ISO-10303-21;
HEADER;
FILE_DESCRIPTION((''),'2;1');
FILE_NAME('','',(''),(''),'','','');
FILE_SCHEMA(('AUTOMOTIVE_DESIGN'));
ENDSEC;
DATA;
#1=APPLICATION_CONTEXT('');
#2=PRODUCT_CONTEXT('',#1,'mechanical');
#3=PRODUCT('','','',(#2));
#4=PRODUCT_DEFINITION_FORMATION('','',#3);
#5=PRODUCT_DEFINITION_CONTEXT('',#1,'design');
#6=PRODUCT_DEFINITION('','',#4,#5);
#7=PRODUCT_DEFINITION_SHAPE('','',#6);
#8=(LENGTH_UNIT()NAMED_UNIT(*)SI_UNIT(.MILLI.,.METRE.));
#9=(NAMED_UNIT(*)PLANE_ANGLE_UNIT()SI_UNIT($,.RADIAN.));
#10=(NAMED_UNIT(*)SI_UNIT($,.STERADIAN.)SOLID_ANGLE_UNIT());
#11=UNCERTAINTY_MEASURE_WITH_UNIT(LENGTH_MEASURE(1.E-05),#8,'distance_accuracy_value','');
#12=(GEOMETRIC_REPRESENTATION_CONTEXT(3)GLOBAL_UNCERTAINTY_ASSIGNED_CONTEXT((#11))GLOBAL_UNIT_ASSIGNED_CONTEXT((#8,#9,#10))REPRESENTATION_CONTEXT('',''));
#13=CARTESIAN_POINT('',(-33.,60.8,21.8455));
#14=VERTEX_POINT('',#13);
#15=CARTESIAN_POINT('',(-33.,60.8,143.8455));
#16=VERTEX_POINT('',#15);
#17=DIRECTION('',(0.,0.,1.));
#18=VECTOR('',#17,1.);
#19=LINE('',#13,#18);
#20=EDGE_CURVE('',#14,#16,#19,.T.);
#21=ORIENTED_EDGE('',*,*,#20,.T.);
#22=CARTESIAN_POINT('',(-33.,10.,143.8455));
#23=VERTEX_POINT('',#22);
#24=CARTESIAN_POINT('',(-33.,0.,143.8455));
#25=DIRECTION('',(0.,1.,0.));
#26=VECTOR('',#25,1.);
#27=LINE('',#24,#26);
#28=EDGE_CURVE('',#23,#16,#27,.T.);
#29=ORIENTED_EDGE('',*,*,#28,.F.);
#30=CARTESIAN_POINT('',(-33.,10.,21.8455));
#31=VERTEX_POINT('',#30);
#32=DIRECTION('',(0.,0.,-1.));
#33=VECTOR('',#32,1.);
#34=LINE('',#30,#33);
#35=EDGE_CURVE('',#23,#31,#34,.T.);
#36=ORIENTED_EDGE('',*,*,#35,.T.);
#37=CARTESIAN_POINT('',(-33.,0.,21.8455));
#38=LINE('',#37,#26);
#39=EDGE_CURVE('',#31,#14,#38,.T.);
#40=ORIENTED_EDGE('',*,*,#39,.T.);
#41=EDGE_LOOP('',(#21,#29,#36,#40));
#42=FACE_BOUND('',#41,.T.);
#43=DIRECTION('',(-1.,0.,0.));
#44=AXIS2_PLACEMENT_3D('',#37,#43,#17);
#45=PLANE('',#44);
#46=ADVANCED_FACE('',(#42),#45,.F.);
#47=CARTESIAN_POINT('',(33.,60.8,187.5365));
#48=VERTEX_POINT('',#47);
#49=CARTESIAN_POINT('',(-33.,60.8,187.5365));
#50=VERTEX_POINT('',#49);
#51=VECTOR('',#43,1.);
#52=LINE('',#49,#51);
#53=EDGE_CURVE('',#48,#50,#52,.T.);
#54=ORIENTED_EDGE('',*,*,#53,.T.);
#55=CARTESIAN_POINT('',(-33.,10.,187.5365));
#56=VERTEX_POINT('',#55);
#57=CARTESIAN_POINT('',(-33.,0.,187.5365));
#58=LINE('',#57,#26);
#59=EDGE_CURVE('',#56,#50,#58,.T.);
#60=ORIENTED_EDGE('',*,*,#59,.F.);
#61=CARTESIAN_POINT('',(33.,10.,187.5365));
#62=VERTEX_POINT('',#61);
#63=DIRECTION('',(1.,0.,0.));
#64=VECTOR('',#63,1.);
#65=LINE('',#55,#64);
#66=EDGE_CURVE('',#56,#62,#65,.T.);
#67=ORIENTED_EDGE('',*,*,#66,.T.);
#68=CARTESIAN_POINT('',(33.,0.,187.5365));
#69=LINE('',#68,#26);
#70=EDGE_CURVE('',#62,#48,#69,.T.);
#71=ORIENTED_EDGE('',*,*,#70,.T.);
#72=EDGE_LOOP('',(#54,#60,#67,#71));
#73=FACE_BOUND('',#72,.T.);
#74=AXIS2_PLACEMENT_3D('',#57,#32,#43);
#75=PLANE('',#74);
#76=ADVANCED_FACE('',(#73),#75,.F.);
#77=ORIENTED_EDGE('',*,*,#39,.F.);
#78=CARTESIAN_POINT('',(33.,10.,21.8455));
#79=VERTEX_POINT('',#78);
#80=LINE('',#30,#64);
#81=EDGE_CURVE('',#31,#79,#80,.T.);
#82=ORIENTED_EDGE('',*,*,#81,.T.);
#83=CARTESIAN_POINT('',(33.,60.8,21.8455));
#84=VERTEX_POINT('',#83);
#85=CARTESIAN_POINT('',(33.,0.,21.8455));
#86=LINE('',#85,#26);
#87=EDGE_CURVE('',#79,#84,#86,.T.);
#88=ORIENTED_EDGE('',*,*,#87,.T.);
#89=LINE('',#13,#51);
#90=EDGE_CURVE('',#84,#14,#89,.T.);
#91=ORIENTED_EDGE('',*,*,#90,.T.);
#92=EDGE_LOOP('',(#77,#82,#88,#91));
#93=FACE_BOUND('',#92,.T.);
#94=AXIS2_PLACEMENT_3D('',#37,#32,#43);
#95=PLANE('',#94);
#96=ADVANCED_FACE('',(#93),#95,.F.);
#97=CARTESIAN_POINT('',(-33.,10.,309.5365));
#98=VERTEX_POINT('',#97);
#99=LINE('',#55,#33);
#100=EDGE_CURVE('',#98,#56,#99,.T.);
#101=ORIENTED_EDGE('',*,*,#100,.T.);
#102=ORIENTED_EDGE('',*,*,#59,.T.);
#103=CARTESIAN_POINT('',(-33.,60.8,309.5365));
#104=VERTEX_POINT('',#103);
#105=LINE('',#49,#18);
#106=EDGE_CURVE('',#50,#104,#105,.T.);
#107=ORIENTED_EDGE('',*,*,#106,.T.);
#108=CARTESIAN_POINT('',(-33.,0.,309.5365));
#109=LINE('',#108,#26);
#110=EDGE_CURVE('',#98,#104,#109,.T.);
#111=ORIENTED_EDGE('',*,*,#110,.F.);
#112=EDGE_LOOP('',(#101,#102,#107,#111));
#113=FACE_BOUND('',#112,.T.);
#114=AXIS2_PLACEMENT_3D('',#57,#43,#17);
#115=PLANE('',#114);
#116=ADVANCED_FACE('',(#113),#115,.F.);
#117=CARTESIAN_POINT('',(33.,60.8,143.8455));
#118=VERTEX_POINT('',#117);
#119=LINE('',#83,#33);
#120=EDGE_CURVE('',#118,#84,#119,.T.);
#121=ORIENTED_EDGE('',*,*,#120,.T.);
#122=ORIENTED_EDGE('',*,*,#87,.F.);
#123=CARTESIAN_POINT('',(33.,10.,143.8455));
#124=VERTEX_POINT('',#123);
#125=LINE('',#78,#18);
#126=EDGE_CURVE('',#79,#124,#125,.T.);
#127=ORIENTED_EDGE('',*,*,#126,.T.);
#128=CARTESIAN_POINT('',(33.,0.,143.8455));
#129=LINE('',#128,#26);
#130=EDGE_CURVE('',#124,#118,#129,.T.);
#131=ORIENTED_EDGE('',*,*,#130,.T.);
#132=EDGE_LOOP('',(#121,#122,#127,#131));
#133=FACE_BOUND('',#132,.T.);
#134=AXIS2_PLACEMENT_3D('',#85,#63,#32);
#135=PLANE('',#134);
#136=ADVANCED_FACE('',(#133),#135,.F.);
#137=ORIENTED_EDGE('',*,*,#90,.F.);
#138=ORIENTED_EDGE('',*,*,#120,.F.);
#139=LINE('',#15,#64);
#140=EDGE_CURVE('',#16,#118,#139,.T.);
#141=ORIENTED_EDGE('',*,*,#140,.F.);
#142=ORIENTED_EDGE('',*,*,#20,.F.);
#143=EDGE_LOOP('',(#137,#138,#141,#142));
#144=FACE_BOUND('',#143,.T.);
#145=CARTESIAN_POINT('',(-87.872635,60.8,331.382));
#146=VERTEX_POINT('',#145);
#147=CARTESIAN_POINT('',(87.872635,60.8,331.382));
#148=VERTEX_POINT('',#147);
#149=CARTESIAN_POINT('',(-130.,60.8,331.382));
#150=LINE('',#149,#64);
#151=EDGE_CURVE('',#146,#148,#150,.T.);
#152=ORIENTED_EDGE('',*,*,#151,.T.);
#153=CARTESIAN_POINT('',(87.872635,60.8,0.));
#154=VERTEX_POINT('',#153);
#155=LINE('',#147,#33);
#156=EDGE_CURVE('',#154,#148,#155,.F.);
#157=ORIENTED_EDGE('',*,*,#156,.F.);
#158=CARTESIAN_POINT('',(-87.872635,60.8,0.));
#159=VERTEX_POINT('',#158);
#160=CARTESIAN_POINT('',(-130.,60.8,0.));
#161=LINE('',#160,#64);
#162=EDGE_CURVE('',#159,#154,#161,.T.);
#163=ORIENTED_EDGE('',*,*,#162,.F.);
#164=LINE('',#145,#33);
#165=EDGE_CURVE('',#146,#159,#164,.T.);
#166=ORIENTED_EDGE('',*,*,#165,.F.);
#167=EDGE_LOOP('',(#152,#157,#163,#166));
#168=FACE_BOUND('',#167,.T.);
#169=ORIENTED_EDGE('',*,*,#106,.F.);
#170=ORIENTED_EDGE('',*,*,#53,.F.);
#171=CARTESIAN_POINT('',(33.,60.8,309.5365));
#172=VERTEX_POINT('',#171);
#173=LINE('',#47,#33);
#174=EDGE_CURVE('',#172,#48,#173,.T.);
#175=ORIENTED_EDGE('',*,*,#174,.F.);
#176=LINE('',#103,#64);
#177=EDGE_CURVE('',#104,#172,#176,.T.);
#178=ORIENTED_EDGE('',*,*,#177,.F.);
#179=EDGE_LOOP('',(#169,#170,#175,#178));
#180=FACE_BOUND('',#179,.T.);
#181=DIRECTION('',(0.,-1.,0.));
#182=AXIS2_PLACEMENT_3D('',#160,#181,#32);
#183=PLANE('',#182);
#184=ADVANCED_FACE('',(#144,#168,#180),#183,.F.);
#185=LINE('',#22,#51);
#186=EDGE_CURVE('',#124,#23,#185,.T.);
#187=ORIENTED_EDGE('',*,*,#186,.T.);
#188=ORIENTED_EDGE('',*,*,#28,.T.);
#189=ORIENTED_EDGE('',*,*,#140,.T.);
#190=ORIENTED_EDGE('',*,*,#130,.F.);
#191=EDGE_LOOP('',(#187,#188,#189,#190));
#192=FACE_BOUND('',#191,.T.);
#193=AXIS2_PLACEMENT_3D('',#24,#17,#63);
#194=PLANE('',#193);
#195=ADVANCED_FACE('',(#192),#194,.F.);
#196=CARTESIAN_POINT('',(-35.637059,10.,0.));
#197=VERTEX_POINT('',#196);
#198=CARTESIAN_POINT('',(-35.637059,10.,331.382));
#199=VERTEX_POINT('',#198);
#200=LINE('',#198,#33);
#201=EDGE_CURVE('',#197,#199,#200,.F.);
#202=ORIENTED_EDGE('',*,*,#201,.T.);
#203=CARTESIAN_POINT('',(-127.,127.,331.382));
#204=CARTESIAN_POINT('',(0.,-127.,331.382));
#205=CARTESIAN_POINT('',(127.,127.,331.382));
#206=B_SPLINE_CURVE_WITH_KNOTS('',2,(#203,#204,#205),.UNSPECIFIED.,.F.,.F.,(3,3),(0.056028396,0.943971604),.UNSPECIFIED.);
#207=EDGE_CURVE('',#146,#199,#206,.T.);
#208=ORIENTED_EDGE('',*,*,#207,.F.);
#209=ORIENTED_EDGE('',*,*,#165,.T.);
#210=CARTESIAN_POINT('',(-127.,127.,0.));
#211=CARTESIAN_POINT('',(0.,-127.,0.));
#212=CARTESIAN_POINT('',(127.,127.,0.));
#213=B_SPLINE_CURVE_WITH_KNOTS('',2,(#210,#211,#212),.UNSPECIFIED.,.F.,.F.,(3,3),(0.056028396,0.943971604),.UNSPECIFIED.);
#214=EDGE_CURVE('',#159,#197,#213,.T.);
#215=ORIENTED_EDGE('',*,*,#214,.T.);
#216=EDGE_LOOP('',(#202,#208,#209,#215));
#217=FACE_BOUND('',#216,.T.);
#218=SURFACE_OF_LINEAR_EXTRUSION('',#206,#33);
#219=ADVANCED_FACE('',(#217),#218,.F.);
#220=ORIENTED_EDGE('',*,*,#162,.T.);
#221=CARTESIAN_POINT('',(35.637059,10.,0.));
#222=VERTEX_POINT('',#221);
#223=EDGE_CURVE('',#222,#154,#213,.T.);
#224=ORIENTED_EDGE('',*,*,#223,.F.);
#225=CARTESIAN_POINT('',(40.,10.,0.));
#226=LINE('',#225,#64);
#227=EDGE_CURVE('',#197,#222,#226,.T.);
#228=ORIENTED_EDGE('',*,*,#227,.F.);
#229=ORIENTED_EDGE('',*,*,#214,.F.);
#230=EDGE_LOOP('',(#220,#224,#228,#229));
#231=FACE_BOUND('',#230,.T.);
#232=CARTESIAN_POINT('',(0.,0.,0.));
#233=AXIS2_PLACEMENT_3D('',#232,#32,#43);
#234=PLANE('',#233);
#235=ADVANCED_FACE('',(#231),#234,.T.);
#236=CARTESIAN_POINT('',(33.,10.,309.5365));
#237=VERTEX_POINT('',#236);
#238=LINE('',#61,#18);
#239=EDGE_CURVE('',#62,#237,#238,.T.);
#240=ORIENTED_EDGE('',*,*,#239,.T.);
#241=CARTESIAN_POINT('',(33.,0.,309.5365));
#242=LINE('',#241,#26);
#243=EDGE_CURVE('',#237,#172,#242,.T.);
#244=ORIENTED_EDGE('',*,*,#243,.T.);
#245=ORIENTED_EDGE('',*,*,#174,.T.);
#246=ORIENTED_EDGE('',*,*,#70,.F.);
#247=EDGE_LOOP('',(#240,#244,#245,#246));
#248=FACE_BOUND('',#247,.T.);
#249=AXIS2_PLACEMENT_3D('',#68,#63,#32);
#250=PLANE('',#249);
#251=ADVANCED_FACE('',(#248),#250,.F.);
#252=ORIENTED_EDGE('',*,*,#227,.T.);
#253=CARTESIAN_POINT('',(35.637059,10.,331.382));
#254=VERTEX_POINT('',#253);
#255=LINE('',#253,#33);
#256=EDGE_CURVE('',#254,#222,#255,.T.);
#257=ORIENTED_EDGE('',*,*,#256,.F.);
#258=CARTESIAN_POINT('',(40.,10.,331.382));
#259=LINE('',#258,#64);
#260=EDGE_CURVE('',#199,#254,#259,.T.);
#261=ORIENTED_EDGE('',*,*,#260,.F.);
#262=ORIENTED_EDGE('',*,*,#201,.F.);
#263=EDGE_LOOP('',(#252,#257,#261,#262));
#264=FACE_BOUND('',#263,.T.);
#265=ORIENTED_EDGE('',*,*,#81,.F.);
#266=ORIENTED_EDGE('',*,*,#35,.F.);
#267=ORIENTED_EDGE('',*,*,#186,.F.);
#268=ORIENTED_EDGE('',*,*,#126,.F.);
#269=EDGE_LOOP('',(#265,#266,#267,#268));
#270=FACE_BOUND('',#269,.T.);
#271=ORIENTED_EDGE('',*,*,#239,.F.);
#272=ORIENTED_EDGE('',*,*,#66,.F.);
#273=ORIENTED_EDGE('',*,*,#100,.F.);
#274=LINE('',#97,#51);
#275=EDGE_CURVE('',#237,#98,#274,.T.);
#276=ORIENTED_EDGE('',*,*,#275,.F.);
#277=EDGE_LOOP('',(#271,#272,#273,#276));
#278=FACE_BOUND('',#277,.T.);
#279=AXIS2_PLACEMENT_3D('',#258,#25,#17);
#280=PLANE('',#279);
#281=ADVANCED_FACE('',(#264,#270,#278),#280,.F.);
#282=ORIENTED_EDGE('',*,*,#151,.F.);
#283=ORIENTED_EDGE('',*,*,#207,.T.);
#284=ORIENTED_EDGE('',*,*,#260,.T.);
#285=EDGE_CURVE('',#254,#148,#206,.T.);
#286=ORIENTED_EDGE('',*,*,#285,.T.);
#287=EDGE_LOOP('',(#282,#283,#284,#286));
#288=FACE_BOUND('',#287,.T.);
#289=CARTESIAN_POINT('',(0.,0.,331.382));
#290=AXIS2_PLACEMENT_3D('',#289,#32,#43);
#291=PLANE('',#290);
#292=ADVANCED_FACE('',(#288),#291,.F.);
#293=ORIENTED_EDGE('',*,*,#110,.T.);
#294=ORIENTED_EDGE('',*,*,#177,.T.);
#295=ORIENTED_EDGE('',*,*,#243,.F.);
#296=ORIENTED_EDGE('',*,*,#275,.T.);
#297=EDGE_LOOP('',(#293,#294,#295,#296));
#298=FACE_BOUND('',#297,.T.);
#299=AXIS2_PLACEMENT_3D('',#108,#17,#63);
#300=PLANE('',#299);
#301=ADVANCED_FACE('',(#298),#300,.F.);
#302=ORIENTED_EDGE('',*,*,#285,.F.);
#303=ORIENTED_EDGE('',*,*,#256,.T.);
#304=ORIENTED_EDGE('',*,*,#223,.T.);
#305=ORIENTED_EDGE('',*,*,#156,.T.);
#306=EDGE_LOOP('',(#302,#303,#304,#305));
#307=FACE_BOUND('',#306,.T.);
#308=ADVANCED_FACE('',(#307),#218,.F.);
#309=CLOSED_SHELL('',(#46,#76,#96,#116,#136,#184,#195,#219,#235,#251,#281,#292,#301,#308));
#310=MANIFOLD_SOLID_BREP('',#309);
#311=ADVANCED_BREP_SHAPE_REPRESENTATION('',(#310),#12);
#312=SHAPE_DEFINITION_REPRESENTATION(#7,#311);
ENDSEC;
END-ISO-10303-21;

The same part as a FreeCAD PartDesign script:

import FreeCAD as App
import Part
import Sketcher
Q = App.Units.Quantity

doc = App.newDocument("Part")
body = doc.addObject("PartDesign::Body", "Body")

# Sketch on XY plane
sketch1 = doc.addObject("Sketcher::SketchObject", "Sketch")
body.addObject(sketch1)
sketch1.AttachmentSupport = (doc.XY_Plane, [""])
sketch1.MapMode = "FlatFace"
sketch1.addGeometry(Part.LineSegment(App.Vector(127, 127, 0), App.Vector(-127, 127, 0)), False)
sketch1.addGeometry(Part.BSplineCurve([App.Vector(-127, 127, 0), App.Vector(0, -127, 0), App.Vector(127, 127, 0)], [3, 3], [0.056028396, 0.943971604], False, 2, [1, 1, 1], False), False)
sketch1.addConstraint(Sketcher.Constraint("Block", 1))
sketch1.addConstraint(Sketcher.Constraint("Coincident", 0, 1, 1, 2))
sketch1.addConstraint(Sketcher.Constraint("Coincident", 1, 1, 0, 2))
pad1 = doc.addObject("PartDesign::Pad", "Pad")
body.addObject(pad1)
pad1.Profile = sketch1
pad1.Length = 331.382

# Sketch on XZ plane
sketch2 = doc.addObject("Sketcher::SketchObject", "Sketch001")
body.addObject(sketch2)
sketch2.AttachmentSupport = (doc.XZ_Plane, [""])
sketch2.MapMode = "FlatFace"
sketch2.AttachmentOffset = App.Placement(App.Vector(0, 0, -127), App.Rotation())
sketch2.addGeometry(Part.LineSegment(App.Vector(-33, 21.8455, 0), App.Vector(-33, 143.8455, 0)), False)
sketch2.addGeometry(Part.LineSegment(App.Vector(-33, 143.8455, 0), App.Vector(33, 143.8455, 0)), False)
sketch2.addGeometry(Part.LineSegment(App.Vector(33, 143.8455, 0), App.Vector(33, 21.8455, 0)), False)
sketch2.addGeometry(Part.LineSegment(App.Vector(33, 21.8455, 0), App.Vector(-33, 21.8455, 0)), False)
sketch2.addGeometry(Part.LineSegment(App.Vector(-33, 187.5365, 0), App.Vector(-33, 309.5365, 0)), False)
sketch2.addGeometry(Part.LineSegment(App.Vector(-33, 309.5365, 0), App.Vector(33, 309.5365, 0)), False)
sketch2.addGeometry(Part.LineSegment(App.Vector(33, 309.5365, 0), App.Vector(33, 187.5365, 0)), False)
sketch2.addGeometry(Part.LineSegment(App.Vector(33, 187.5365, 0), App.Vector(-33, 187.5365, 0)), False)
sketch2.addConstraint(Sketcher.Constraint("Coincident", 0, 2, 1, 1))
sketch2.addConstraint(Sketcher.Constraint("Coincident", 1, 2, 2, 1))
sketch2.addConstraint(Sketcher.Constraint("Coincident", 2, 2, 3, 1))
sketch2.addConstraint(Sketcher.Constraint("Coincident", 3, 2, 0, 1))
sketch2.addConstraint(Sketcher.Constraint("Coincident", 4, 2, 5, 1))
sketch2.addConstraint(Sketcher.Constraint("Coincident", 5, 2, 6, 1))
sketch2.addConstraint(Sketcher.Constraint("Coincident", 6, 2, 7, 1))
sketch2.addConstraint(Sketcher.Constraint("Coincident", 7, 2, 4, 1))
sketch2.addConstraint(Sketcher.Constraint("Vertical", 0))
sketch2.addConstraint(Sketcher.Constraint("Horizontal", 1))
sketch2.addConstraint(Sketcher.Constraint("Vertical", 2))
sketch2.addConstraint(Sketcher.Constraint("Horizontal", 3))
sketch2.addConstraint(Sketcher.Constraint("Vertical", 4))
sketch2.addConstraint(Sketcher.Constraint("Horizontal", 5))
sketch2.addConstraint(Sketcher.Constraint("Vertical", 6))
sketch2.addConstraint(Sketcher.Constraint("Horizontal", 7))
sketch2.addConstraint(Sketcher.Constraint("Vertical", 3, 2, 4, 2))
sketch2.addConstraint(Sketcher.Constraint("Vertical", 2, 2, 5, 2))
sketch2.addConstraint(Sketcher.Constraint("Equal", 2, 4))
sketch2.addConstraint(Sketcher.Constraint("DistanceX", 1, 1, 1, 2, Q("66 mm")))
sketch2.addConstraint(Sketcher.Constraint("DistanceY", 0, 1, 0, 2, Q("122 mm")))
sketch2.addConstraint(Sketcher.Constraint("DistanceX", 0, 2, -1, 1, Q("33 mm")))
sketch2.addConstraint(Sketcher.Constraint("DistanceY", 0, 2, 4, 2, Q("165.691 mm")))
sketch2.addConstraint(Sketcher.Constraint("DistanceY", -1, 1, 0, 2, Q("143.8455 mm")))
pocket1 = doc.addObject("PartDesign::Pocket", "Pocket")
body.addObject(pocket1)
pocket1.Profile = sketch2
pocket1.Type = "ThroughAll"
pocket1.Reversed = True

# Sketch on XY plane
sketch3 = doc.addObject("Sketcher::SketchObject", "Sketch002")
body.addObject(sketch3)
sketch3.AttachmentSupport = (doc.XY_Plane, [""])
sketch3.MapMode = "FlatFace"
sketch3.addGeometry(Part.LineSegment(App.Vector(40, 10, 0), App.Vector(40, 0, 0)), False)
sketch3.addGeometry(Part.LineSegment(App.Vector(40, 0, 0), App.Vector(-40, 0, 0)), False)
sketch3.addGeometry(Part.LineSegment(App.Vector(-40, 0, 0), App.Vector(-40, 10, 0)), False)
sketch3.addGeometry(Part.LineSegment(App.Vector(-40, 10, 0), App.Vector(40, 10, 0)), False)
sketch3.addConstraint(Sketcher.Constraint("Coincident", 0, 2, 1, 1))
sketch3.addConstraint(Sketcher.Constraint("Coincident", 1, 2, 2, 1))
sketch3.addConstraint(Sketcher.Constraint("Coincident", 2, 2, 3, 1))
sketch3.addConstraint(Sketcher.Constraint("Coincident", 3, 2, 0, 1))
sketch3.addConstraint(Sketcher.Constraint("Vertical", 0))
sketch3.addConstraint(Sketcher.Constraint("Horizontal", 1))
sketch3.addConstraint(Sketcher.Constraint("Vertical", 2))
sketch3.addConstraint(Sketcher.Constraint("Horizontal", 3))
sketch3.addConstraint(Sketcher.Constraint("Symmetric", 0, 2, 1, 2, -1, 1))
sketch3.addConstraint(Sketcher.Constraint("DistanceX", 1, 2, 1, 1, Q("80 mm")))
sketch3.addConstraint(Sketcher.Constraint("DistanceY", 0, 2, 0, 1, Q("10 mm")))
pocket2 = doc.addObject("PartDesign::Pocket", "Pocket001")
body.addObject(pocket2)
pocket2.Profile = sketch3
pocket2.Type = "ThroughAll"
pocket2.Reversed = True

# Sketch on XY plane
sketch4 = doc.addObject("Sketcher::SketchObject", "Sketch003")
body.addObject(sketch4)
sketch4.AttachmentSupport = (doc.XY_Plane, [""])
sketch4.MapMode = "FlatFace"
sketch4.AttachmentOffset = App.Placement(App.Vector(0, 0, 331.382), App.Rotation())
sketch4.addGeometry(Part.LineSegment(App.Vector(-130, 130.8, 0), App.Vector(-130, 60.8, 0)), False)
sketch4.addGeometry(Part.LineSegment(App.Vector(-130, 60.8, 0), App.Vector(130, 60.8, 0)), False)
sketch4.addGeometry(Part.LineSegment(App.Vector(130, 60.8, 0), App.Vector(130, 130.8, 0)), False)
sketch4.addGeometry(Part.LineSegment(App.Vector(130, 130.8, 0), App.Vector(-130, 130.8, 0)), False)
sketch4.addConstraint(Sketcher.Constraint("Coincident", 0, 2, 1, 1))
sketch4.addConstraint(Sketcher.Constraint("Coincident", 1, 2, 2, 1))
sketch4.addConstraint(Sketcher.Constraint("Coincident", 2, 2, 3, 1))
sketch4.addConstraint(Sketcher.Constraint("Coincident", 3, 2, 0, 1))
sketch4.addConstraint(Sketcher.Constraint("Vertical", 0))
sketch4.addConstraint(Sketcher.Constraint("Horizontal", 1))
sketch4.addConstraint(Sketcher.Constraint("Vertical", 2))
sketch4.addConstraint(Sketcher.Constraint("Horizontal", 3))
sketch4.addConstraint(Sketcher.Constraint("DistanceX", 1, 1, 1, 2, Q("260 mm")))
sketch4.addConstraint(Sketcher.Constraint("DistanceY", 0, 2, 0, 1, Q("70 mm")))
sketch4.addConstraint(Sketcher.Constraint("DistanceX", 0, 2, -1, 1, Q("130 mm")))
sketch4.addConstraint(Sketcher.Constraint("DistanceY", -1, 1, 0, 2, Q("60.8 mm")))
pocket3 = doc.addObject("PartDesign::Pocket", "Pocket002")
body.addObject(pocket3)
pocket3.Profile = sketch4
pocket3.Type = "ThroughAll"

doc.recompute()
